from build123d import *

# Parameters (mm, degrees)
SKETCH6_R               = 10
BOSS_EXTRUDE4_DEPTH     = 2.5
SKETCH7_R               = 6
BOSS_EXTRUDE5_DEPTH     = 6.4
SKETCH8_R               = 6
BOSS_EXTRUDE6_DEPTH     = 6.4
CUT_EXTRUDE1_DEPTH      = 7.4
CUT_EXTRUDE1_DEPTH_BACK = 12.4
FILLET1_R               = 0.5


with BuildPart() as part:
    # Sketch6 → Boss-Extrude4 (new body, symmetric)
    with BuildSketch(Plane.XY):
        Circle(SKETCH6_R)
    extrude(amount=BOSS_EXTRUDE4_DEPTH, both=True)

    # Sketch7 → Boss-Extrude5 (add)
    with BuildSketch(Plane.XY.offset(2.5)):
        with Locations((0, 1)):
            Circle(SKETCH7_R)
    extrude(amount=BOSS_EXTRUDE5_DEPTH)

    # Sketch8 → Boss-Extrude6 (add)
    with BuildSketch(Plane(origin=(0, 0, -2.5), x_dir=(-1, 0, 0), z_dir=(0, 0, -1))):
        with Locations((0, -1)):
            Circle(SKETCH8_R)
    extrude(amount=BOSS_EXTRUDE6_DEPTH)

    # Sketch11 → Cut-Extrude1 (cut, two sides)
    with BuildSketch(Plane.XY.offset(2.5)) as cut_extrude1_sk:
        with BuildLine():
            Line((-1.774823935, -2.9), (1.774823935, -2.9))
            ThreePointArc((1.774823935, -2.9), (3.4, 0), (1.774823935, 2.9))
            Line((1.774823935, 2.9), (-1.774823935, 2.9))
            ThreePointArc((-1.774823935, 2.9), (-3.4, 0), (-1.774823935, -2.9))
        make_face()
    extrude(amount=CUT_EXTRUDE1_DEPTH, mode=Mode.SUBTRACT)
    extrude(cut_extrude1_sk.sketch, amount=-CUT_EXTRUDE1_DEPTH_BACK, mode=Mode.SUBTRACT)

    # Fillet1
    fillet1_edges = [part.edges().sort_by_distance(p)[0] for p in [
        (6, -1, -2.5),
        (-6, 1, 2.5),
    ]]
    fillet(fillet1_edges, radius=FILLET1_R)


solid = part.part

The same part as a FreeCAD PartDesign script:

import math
import FreeCAD as App
import Part
import Sketcher

V = App.Vector


def edges_at(feature, points):
    """Names of the edges that pass closest to the given points."""
    edges = feature.Shape.Edges
    near = lambda p: min(range(len(edges)), key=lambda i: edges[i].distToShape(Part.Vertex(*p))[0])
    return sorted({f"Edge{near(p) + 1}" for p in points})

doc = App.newDocument("Part")
body = doc.addObject("PartDesign::Body", "Body")

# Sketch on XY plane
sketch1 = body.newObject("Sketcher::SketchObject", "Sketch")
sketch1.AttachmentSupport = (doc.getObject("XY_Plane"), [""])
sketch1.MapMode = "FlatFace"
sketch1.addGeometry(Part.Circle(V(0, 0, 0), V(0, 0, 1), 10), False)
sketch1.addConstraint(Sketcher.Constraint("Coincident", 0, 3, -1, 1))
sketch1.addConstraint(Sketcher.Constraint("Diameter", 0, 20.0))
pad1 = body.newObject("PartDesign::Pad", "Pad")
pad1.Profile = sketch1
pad1.Length = 5
pad1.Midplane = True

# Sketch on XY plane
sketch2 = body.newObject("Sketcher::SketchObject", "Sketch001")
sketch2.AttachmentSupport = (doc.getObject("XY_Plane"), [""])
sketch2.MapMode = "FlatFace"
sketch2.AttachmentOffset = App.Placement(V(0, 0, 2.5), App.Rotation())
sketch2.addGeometry(Part.Circle(V(0, 1, 0), V(0, 0, 1), 6), False)
sketch2.addConstraint(Sketcher.Constraint("PointOnObject", 0, 3, -2))
sketch2.addConstraint(Sketcher.Constraint("Diameter", 0, 12.0))
sketch2.addConstraint(Sketcher.Constraint("DistanceY", -1, 1, 0, 3, 1.0))
pad2 = body.newObject("PartDesign::Pad", "Pad001")
pad2.Profile = sketch2
pad2.Length = 6.4

# Sketch on XY plane
sketch3 = body.newObject("Sketcher::SketchObject", "Sketch002")
sketch3.AttachmentSupport = (doc.getObject("XY_Plane"), [""])
sketch3.MapMode = "FlatFace"
sketch3.AttachmentOffset = App.Placement(V(0, 0, -2.5), App.Rotation())
sketch3.addGeometry(Part.Circle(V(0, -1, 0), V(0, 0, 1), 6), False)
sketch3.addConstraint(Sketcher.Constraint("PointOnObject", 0, 3, -2))
sketch3.addConstraint(Sketcher.Constraint("Diameter", 0, 12.0))
sketch3.addConstraint(Sketcher.Constraint("DistanceY", 0, 3, -1, 1, 1.0))
pad3 = body.newObject("PartDesign::Pad", "Pad002")
pad3.Profile = sketch3
pad3.Length = 6.4
pad3.Reversed = True

# Sketch on XY plane
sketch4 = body.newObject("Sketcher::SketchObject", "Sketch003")
sketch4.AttachmentSupport = (doc.getObject("XY_Plane"), [""])
sketch4.MapMode = "FlatFace"
sketch4.AttachmentOffset = App.Placement(V(0, 0, 2.5), App.Rotation())
sketch4.addGeometry(Part.LineSegment(V(-1.8, -2.9, 0), V(1.8, -2.9, 0)), False)
sketch4.addGeometry(Part.ArcOfCircle(Part.Circle(V(0, 0, 0), V(0, 0, 1), 3.4), math.radians(-59), math.radians(59)), False)
sketch4.addGeometry(Part.LineSegment(V(1.8, 2.9, 0), V(-1.8, 2.9, 0)), False)
sketch4.addGeometry(Part.ArcOfCircle(Part.Circle(V(0, 0, 0), V(0, 0, 1), 3.4), math.radians(121), math.radians(239)), False)
sketch4.addConstraint(Sketcher.Constraint("Coincident", 0, 2, 1, 1))
sketch4.addConstraint(Sketcher.Constraint("Coincident", 1, 2, 2, 1))
sketch4.addConstraint(Sketcher.Constraint("Coincident", 2, 2, 3, 1))
sketch4.addConstraint(Sketcher.Constraint("Coincident", 3, 2, 0, 1))
sketch4.addConstraint(Sketcher.Constraint("Horizontal", 0))
sketch4.addConstraint(Sketcher.Constraint("Horizontal", 2))
sketch4.addConstraint(Sketcher.Constraint("Coincident", 1, 3, -1, 1))
sketch4.addConstraint(Sketcher.Constraint("Coincident", 3, 3, -1, 1))
sketch4.addConstraint(Sketcher.Constraint("Equal", 1, 3))
sketch4.addConstraint(Sketcher.Constraint("Vertical", 0, 2, 1, 2))
sketch4.addConstraint(Sketcher.Constraint("Radius", 1, 3.4))
sketch4.addConstraint(Sketcher.Constraint("DistanceY", 0, 2, -1, 1, 2.9))
pocket1 = body.newObject("PartDesign::Pocket", "Pocket")
pocket1.Profile = sketch4
pocket1.Type = "ThroughAll"
pocket1.Midplane = True
doc.recompute()

fillet = body.newObject("PartDesign::Fillet", "Fillet")
fillet.Base = (pocket1, edges_at(pocket1, [(6, -1, -2.5), (-6, 1, 2.5)]))
fillet.Radius = 0.5

doc.recompute()
